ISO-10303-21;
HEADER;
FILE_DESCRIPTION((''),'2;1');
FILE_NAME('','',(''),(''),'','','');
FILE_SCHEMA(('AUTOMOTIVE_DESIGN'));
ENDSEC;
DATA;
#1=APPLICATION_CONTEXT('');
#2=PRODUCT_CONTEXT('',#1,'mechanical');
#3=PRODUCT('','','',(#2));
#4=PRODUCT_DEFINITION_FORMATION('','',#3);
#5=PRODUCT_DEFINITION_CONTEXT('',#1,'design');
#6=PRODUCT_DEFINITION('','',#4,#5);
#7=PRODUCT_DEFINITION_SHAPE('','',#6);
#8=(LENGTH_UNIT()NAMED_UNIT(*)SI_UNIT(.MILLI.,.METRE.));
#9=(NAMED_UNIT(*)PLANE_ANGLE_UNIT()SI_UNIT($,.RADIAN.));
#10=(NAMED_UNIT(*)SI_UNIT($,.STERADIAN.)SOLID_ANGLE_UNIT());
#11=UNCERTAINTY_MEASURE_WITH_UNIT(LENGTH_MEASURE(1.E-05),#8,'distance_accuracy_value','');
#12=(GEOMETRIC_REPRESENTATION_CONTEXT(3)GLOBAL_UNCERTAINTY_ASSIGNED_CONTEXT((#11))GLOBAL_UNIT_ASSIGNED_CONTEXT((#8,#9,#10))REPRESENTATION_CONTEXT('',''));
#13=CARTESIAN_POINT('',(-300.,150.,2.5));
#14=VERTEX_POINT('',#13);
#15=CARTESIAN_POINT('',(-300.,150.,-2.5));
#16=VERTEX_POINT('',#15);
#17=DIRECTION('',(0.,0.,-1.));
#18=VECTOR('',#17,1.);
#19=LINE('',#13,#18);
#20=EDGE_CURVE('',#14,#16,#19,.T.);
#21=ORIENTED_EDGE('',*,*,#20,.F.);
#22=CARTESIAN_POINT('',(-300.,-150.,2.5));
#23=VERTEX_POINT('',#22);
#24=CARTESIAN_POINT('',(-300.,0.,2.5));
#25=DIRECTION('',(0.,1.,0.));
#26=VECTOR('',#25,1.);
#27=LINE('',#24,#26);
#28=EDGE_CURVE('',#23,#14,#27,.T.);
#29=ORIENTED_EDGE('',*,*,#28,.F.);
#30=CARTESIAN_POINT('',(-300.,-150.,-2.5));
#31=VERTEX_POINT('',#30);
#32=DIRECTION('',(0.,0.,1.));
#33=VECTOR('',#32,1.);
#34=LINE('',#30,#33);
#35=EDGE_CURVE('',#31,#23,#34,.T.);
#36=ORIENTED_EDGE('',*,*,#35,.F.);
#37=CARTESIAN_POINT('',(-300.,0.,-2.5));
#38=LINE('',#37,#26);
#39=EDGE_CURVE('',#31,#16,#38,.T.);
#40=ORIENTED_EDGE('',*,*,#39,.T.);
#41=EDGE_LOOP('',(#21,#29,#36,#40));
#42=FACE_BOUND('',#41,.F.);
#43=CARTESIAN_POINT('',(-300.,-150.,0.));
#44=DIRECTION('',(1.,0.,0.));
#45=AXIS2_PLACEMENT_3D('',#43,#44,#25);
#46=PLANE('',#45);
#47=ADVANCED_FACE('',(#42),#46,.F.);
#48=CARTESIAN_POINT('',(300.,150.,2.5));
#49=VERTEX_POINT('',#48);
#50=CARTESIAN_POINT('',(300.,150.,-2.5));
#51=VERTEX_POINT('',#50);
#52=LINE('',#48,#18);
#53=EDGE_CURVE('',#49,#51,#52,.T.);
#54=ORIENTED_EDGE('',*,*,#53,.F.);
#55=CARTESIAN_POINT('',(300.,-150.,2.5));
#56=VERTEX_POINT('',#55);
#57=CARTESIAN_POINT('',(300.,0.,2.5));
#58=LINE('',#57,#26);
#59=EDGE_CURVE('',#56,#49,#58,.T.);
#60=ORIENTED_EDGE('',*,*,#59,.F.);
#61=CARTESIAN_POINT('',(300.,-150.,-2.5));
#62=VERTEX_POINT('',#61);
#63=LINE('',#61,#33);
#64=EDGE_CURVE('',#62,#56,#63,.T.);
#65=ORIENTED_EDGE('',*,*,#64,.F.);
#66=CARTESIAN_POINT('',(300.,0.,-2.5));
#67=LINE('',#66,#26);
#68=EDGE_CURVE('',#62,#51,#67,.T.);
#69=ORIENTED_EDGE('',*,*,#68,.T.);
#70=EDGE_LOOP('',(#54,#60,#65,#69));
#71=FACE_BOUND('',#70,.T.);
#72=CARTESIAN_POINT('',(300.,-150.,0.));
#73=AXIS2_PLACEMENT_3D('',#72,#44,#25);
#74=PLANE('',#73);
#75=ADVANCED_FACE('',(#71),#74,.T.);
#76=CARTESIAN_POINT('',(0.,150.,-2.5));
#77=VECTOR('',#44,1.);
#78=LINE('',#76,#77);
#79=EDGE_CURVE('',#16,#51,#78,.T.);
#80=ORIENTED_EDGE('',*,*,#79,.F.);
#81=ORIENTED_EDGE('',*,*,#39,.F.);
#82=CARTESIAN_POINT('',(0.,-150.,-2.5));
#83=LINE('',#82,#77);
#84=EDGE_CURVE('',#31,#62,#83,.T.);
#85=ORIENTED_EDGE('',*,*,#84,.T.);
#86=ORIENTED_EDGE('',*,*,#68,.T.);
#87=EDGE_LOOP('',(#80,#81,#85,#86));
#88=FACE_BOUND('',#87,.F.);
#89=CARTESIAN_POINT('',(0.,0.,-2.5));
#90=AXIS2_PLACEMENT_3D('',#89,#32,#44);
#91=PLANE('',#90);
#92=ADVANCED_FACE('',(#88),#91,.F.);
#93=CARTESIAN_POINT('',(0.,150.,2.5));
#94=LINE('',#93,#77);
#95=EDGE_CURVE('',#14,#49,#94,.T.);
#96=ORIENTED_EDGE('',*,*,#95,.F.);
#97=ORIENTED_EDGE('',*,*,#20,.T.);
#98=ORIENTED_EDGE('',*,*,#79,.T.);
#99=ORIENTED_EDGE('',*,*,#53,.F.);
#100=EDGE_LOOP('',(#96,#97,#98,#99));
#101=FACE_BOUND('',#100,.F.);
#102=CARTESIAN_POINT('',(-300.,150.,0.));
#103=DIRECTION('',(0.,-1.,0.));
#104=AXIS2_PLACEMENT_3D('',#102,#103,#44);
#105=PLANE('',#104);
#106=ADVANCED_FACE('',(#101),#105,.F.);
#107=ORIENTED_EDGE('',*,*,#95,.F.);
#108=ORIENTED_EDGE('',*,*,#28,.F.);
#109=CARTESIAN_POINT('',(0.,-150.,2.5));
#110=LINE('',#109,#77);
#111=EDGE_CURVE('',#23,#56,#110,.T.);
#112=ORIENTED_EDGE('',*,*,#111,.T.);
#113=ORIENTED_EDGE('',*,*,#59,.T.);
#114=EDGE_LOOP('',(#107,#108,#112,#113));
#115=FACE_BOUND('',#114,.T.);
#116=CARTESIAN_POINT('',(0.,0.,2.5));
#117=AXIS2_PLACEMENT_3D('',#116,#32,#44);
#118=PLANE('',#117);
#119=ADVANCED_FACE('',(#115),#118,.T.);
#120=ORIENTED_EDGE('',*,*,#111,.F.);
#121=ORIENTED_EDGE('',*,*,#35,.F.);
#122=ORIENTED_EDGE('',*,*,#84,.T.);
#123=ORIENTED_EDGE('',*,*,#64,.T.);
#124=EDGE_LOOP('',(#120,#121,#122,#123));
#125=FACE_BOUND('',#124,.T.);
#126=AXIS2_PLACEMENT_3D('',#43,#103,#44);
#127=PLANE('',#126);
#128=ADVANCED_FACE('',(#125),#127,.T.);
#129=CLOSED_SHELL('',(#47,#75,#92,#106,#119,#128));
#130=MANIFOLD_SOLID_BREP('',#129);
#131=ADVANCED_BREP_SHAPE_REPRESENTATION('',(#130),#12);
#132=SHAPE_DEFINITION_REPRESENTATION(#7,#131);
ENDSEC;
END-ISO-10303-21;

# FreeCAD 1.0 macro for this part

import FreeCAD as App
import Part
import Sketcher
from FreeCAD import Vector


def add_polygon(sketch, points):
    """Adds a closed chain of lines whose ends are joined by coincident constraints."""
    first, n = sketch.GeometryCount, len(points)
    for a, b in zip(points, points[1:] + points[:1]):
        sketch.addGeometry(Part.LineSegment(App.Vector(*a, 0), App.Vector(*b, 0)), False)
    for i in range(n):
        sketch.addConstraint(Sketcher.Constraint("Coincident", first + i, 2, first + (i + 1) % n, 1))

doc = App.newDocument("Part")
body = doc.addObject("PartDesign::Body", "Body")

sketch1 = body.newObject("Sketcher::SketchObject", "Sketch")
sketch1.AttachmentSupport = (doc.getObject("XY_Plane"), [""])
sketch1.MapMode = "FlatFace"
add_polygon(sketch1, [(-300, 150), (-300, -150), (300, -150), (300, 150)])
sketch1.addConstraint([
    Sketcher.Constraint("Vertical", 0),
    Sketcher.Constraint("Horizontal", 1),
    Sketcher.Constraint("Vertical", 2),
    Sketcher.Constraint("Horizontal", 3),
    Sketcher.Constraint("Symmetric", 0, 2, 2, 2, -1, 1),
    Sketcher.Constraint("DistanceX", 1, 1, 1, 2, 600.0),
    Sketcher.Constraint("DistanceY", 0, 2, 0, 1, 300.0),
])
pad1 = body.newObject("PartDesign::Pad", "Pad")
pad1.Profile = sketch1
pad1.Length = 5
pad1.Midplane = True

doc.recompute()
